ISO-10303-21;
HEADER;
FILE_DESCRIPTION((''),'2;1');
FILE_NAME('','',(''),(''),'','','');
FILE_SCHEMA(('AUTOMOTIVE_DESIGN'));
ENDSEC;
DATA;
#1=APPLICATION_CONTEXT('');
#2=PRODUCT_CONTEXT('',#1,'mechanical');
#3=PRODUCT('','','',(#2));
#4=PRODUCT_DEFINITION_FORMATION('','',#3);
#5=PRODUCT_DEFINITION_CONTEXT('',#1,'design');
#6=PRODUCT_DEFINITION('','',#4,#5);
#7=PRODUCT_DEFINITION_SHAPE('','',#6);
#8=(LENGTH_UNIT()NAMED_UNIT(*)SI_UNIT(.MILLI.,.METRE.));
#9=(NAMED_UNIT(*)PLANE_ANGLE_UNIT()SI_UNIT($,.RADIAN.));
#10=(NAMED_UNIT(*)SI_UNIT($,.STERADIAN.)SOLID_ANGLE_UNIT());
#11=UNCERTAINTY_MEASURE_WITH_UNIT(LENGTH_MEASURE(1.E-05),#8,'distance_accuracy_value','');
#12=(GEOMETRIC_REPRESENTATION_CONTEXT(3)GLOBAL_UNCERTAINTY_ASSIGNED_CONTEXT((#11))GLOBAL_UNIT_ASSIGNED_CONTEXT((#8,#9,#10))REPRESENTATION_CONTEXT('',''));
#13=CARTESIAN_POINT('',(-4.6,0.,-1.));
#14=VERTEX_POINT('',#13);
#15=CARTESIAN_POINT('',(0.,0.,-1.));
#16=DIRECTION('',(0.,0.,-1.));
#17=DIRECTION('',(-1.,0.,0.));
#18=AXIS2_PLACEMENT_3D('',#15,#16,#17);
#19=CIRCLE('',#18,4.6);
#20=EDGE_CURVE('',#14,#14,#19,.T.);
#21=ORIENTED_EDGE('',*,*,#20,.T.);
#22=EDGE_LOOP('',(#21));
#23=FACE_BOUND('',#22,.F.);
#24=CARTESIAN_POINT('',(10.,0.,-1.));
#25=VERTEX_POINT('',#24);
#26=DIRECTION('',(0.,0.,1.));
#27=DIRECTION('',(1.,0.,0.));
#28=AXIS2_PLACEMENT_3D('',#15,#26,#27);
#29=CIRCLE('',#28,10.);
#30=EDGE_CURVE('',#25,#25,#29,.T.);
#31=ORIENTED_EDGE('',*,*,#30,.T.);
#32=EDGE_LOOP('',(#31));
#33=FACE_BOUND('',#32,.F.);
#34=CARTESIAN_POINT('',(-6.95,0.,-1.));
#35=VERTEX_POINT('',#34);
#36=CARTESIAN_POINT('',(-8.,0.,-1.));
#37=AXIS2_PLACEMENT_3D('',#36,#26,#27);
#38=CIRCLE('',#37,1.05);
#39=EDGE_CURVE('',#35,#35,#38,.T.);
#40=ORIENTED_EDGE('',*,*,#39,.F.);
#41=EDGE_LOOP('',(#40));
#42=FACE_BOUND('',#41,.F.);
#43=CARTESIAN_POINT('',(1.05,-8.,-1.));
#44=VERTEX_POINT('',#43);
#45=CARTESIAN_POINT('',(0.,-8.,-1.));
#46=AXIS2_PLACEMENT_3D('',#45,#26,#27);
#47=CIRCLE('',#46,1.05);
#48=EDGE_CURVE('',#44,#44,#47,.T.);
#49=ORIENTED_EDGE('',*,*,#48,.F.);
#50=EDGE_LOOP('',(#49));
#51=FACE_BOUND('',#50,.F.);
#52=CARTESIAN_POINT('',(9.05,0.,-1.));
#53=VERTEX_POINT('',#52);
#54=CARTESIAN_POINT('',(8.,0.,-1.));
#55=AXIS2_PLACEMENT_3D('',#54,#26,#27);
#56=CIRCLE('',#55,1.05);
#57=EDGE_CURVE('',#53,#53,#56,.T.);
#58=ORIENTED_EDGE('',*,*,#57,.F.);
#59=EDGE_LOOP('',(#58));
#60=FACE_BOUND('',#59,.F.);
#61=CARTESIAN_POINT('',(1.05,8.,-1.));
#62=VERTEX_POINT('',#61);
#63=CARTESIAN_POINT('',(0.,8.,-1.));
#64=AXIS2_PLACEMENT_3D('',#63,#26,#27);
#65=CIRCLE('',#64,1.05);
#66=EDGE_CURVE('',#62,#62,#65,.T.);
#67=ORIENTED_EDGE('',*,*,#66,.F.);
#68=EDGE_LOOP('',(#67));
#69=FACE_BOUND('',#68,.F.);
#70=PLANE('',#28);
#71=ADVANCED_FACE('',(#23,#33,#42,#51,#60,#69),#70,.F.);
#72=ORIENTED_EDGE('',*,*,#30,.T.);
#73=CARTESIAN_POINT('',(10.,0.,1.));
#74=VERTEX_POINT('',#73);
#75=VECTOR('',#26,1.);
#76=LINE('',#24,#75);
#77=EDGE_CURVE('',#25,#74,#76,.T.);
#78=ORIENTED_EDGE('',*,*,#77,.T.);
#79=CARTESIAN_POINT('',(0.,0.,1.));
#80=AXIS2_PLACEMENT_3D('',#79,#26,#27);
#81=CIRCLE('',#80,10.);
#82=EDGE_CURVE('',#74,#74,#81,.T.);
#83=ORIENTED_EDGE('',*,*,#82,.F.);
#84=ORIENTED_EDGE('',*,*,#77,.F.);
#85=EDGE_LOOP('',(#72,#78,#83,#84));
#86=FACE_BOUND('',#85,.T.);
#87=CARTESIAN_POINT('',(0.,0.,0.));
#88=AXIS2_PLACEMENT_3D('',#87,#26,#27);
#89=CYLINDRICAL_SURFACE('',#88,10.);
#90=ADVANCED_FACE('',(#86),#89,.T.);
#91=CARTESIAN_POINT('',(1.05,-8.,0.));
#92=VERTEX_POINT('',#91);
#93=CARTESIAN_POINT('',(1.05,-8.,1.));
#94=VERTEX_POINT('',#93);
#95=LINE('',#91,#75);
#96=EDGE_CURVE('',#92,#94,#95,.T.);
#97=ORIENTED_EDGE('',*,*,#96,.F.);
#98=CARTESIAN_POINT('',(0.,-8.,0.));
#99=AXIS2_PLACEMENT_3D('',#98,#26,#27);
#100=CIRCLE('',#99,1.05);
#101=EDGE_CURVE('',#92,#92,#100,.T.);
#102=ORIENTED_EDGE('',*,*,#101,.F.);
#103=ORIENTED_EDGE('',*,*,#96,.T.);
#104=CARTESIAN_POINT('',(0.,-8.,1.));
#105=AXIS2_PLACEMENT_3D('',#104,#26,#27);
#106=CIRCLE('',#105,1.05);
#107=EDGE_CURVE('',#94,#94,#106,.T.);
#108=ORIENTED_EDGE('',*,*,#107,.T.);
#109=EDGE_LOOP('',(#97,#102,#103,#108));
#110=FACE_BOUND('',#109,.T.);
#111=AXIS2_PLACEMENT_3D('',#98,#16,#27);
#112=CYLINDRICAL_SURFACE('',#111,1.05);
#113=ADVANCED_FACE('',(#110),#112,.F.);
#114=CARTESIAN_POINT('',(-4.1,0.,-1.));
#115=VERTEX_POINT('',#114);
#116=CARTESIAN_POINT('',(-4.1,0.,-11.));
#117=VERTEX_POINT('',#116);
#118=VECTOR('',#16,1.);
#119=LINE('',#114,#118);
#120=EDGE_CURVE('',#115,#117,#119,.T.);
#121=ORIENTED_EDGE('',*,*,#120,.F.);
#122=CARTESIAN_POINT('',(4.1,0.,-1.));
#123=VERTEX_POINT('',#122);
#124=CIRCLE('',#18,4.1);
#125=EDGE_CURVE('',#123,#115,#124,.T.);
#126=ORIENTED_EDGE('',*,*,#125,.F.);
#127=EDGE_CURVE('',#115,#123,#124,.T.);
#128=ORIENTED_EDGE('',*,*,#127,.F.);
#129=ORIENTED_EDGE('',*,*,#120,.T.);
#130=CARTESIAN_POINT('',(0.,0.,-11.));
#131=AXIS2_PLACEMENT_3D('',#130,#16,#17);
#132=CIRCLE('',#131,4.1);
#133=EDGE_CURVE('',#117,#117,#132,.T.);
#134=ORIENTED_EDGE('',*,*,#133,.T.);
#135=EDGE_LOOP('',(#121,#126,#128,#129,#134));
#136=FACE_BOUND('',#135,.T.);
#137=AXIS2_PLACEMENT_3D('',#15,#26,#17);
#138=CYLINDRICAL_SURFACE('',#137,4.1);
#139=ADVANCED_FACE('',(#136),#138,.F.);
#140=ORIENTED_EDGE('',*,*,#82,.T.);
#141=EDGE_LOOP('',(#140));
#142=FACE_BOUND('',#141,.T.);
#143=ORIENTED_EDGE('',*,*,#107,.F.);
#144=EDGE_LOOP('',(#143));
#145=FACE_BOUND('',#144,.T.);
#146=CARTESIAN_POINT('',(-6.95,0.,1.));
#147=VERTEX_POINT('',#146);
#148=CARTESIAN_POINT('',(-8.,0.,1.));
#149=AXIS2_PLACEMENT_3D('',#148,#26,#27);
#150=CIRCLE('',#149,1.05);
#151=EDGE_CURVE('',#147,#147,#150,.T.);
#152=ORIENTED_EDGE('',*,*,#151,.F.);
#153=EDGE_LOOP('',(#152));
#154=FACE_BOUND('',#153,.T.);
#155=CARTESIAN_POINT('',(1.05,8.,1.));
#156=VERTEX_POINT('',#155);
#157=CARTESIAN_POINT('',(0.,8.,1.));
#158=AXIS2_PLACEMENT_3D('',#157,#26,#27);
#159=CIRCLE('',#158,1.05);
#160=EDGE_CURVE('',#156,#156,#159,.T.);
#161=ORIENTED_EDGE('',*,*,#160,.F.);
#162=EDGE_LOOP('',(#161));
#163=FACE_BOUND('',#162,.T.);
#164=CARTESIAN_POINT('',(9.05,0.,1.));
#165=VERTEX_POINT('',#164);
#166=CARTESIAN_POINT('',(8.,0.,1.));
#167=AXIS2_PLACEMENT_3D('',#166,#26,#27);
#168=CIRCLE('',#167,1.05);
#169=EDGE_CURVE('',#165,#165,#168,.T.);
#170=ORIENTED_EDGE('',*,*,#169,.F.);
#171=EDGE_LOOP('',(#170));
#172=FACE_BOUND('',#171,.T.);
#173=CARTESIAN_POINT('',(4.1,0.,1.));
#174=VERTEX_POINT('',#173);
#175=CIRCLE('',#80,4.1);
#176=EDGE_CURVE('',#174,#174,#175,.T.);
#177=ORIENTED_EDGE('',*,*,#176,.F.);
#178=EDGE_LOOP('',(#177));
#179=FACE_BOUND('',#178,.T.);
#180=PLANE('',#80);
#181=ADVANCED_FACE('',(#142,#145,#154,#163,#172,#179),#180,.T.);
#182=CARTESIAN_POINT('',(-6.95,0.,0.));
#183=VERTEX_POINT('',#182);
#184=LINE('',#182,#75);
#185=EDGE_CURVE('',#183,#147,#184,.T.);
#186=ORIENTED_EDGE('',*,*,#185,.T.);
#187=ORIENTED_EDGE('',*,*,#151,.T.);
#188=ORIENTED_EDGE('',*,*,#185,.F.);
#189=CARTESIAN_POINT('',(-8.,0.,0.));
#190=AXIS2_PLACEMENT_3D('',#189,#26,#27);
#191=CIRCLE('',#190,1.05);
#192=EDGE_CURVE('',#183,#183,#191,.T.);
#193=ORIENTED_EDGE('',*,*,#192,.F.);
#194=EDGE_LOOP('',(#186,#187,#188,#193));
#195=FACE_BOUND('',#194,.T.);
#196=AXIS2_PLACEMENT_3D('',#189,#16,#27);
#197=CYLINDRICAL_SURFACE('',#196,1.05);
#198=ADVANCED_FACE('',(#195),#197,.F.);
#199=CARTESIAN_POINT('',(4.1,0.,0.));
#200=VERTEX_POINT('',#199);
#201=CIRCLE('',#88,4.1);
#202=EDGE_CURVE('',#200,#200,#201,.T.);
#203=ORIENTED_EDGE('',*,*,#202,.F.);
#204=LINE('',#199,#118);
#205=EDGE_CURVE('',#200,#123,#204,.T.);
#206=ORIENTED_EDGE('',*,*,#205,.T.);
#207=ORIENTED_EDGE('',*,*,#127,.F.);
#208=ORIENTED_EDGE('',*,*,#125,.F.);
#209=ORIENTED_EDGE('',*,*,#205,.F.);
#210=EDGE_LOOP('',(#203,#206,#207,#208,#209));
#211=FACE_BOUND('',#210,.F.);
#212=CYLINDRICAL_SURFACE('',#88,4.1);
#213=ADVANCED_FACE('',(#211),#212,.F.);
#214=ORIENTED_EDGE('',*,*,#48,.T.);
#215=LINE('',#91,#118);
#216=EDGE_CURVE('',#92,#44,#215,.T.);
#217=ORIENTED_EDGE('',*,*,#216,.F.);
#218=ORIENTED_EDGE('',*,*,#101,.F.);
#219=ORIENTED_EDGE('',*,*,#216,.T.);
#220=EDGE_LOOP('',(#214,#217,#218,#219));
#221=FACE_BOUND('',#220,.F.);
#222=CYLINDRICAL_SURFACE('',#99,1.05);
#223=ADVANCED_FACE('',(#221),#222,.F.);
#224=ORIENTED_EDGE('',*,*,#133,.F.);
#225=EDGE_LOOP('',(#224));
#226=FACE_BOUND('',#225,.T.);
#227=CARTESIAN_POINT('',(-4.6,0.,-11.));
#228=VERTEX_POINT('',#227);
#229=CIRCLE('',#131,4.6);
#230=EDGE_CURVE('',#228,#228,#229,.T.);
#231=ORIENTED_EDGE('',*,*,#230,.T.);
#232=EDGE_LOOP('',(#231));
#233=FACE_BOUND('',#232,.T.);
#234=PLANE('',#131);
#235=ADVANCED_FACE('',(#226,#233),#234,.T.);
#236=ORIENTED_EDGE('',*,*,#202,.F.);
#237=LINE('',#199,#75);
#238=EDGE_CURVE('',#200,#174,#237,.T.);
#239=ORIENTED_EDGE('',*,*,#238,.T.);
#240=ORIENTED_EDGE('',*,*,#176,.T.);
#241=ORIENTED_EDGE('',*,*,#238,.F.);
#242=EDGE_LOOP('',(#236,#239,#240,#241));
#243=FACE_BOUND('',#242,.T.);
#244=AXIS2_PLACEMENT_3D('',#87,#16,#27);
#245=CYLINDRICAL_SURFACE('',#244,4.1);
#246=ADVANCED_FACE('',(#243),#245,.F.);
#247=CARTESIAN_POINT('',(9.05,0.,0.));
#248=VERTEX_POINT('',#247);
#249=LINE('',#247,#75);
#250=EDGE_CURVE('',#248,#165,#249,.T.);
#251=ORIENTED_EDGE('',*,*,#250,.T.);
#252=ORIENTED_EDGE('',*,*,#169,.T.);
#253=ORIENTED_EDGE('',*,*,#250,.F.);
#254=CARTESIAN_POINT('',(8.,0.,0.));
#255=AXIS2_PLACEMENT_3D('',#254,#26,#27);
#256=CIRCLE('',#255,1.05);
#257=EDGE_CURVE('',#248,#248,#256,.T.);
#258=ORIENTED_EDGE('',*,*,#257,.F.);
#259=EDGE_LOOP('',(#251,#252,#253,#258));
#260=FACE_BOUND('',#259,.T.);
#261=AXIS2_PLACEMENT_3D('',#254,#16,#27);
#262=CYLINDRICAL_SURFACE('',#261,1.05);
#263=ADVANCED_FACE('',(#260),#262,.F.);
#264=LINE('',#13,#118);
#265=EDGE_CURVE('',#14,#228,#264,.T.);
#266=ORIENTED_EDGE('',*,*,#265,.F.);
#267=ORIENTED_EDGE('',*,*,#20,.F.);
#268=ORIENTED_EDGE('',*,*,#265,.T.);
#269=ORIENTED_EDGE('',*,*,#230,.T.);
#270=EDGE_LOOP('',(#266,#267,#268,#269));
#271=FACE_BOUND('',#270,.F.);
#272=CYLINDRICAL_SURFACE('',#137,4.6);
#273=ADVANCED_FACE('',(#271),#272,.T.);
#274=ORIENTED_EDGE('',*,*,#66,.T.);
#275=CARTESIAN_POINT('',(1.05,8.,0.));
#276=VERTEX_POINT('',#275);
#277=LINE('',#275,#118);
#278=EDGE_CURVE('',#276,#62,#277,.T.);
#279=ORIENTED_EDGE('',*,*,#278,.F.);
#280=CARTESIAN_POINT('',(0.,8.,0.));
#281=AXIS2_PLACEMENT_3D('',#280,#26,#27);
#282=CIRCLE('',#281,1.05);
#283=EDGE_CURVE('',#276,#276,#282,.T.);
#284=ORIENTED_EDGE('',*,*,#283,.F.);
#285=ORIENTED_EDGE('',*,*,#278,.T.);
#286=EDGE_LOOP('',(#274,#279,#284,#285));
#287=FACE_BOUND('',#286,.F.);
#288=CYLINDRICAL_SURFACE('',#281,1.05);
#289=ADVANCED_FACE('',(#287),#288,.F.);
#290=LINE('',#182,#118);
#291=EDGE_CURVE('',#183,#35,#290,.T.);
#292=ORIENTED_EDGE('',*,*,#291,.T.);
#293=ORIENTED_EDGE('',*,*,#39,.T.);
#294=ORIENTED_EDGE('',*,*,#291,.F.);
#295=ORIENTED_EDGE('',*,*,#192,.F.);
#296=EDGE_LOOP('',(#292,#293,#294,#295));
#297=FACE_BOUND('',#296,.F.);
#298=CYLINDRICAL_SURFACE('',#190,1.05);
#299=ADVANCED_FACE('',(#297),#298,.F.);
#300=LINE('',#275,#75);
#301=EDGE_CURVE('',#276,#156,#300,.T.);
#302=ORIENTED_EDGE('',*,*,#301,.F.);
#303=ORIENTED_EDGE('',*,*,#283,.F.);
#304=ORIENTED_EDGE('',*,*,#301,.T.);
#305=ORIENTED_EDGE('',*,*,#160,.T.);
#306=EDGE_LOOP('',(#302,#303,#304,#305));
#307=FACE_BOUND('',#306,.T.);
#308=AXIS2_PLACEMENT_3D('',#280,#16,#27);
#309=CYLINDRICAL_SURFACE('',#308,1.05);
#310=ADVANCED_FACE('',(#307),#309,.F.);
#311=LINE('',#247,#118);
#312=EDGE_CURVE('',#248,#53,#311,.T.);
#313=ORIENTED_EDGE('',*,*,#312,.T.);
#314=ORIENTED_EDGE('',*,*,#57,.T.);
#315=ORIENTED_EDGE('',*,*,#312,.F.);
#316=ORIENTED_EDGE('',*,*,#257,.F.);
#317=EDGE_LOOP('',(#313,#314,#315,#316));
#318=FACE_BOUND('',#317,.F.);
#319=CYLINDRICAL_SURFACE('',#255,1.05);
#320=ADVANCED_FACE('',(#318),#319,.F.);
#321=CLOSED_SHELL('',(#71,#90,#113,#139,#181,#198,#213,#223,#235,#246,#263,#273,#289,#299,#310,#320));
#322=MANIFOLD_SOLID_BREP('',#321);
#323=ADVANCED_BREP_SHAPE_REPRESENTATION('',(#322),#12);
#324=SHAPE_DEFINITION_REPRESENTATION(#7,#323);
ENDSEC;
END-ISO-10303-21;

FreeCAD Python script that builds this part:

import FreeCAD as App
import Part
import Sketcher
Q = App.Units.Quantity

doc = App.newDocument("Part")
params = doc.addObject("Spreadsheet::Sheet", "Params")
for row, (alias, value) in enumerate([
    ("sketch1_diameter", "9.2 mm"),
    ("sketch1_diameter2", "8.2 mm"),
    ("pad1_length", "10 mm"),
    ("sketch2_diameter", "20 mm"),
    ("sketch2_diameter2", "2.1 mm"),
    ("sketch2_diameter3", "8.2 mm"),
    ("pad2_length", "2 mm"),
], start=1):
    params.set(f"A{row}", alias)
    params.set(f"B{row}", "=" + value)
    params.setAlias(f"B{row}", alias)

body = doc.addObject("PartDesign::Body", "Body")

sketch1 = body.newObject("Sketcher::SketchObject", "Sketch")
sketch1.AttachmentSupport = (doc.getObject("XY_Plane"), [""])
sketch1.MapMode = "FlatFace"
sketch1.AttachmentOffset = App.Placement(App.Vector(0, 0, -1), App.Rotation())
sketch1.addGeometry([
    Part.Circle(App.Vector(0, 0, 0), App.Vector(0, 0, 1), 4.6),
    Part.Circle(App.Vector(0, 0, 0), App.Vector(0, 0, 1), 4.1),
], False)
sketch1.addConstraint([
    Sketcher.Constraint("Coincident", 0, 3, -1, 1),
    Sketcher.Constraint("Coincident", 1, 3, -1, 1),
    Sketcher.Constraint("Diameter", 0, Q("9.2 mm")),
    Sketcher.Constraint("Diameter", 1, Q("8.2 mm")),
])
sketch1.setExpression("Constraints[2]", "Params.sketch1_diameter")
sketch1.setExpression("Constraints[3]", "Params.sketch1_diameter2")
pad1 = body.newObject("PartDesign::Pad", "Pad")
pad1.Profile = sketch1
pad1.setExpression("Length", "Params.pad1_length")
pad1.Reversed = True

sketch2 = body.newObject("Sketcher::SketchObject", "Sketch001")
sketch2.AttachmentSupport = (doc.getObject("XY_Plane"), [""])
sketch2.MapMode = "FlatFace"
sketch2.addGeometry([
    Part.Circle(App.Vector(0, 0, 0), App.Vector(0, 0, 1), 10),
    Part.Circle(App.Vector(0, -8, 0), App.Vector(0, 0, 1), 1.05),
    Part.Circle(App.Vector(-8, 0, 0), App.Vector(0, 0, 1), 1.05),
    Part.Circle(App.Vector(0, 0, 0), App.Vector(0, 0, 1), 4.1),
    Part.Circle(App.Vector(8, 0, 0), App.Vector(0, 0, 1), 1.05),
    Part.Circle(App.Vector(0, 8, 0), App.Vector(0, 0, 1), 1.05),
], False)
sketch2.addConstraint([
    Sketcher.Constraint("Coincident", 0, 3, -1, 1),
    Sketcher.Constraint("Coincident", 3, 3, -1, 1),
    Sketcher.Constraint("Equal", 1, 2),
    Sketcher.Constraint("Equal", 2, 4),
    Sketcher.Constraint("Equal", 4, 5),
    Sketcher.Constraint("Symmetric", 2, 3, 4, 3, -1, 1),
    Sketcher.Constraint("Symmetric", 1, 3, 5, 3, -1, 1),
    Sketcher.Constraint("PointOnObject", 1, 3, -2),
    Sketcher.Constraint("PointOnObject", 2, 3, -1),
    Sketcher.Constraint("Diameter", 0, Q("20 mm")),
    Sketcher.Constraint("Diameter", 1, Q("2.1 mm")),
    Sketcher.Constraint("Diameter", 3, Q("8.2 mm")),
    Sketcher.Constraint("DistanceY", 1, 3, -1, 1, Q("8 mm")),
    Sketcher.Constraint("DistanceX", 2, 3, -1, 1, Q("8 mm")),
])
sketch2.setExpression("Constraints[9]", "Params.sketch2_diameter")
sketch2.setExpression("Constraints[10]", "Params.sketch2_diameter2")
sketch2.setExpression("Constraints[11]", "Params.sketch2_diameter3")
pad2 = body.newObject("PartDesign::Pad", "Pad001")
pad2.Profile = sketch2
pad2.setExpression("Length", "Params.pad2_length")
pad2.Midplane = True

doc.recompute()
